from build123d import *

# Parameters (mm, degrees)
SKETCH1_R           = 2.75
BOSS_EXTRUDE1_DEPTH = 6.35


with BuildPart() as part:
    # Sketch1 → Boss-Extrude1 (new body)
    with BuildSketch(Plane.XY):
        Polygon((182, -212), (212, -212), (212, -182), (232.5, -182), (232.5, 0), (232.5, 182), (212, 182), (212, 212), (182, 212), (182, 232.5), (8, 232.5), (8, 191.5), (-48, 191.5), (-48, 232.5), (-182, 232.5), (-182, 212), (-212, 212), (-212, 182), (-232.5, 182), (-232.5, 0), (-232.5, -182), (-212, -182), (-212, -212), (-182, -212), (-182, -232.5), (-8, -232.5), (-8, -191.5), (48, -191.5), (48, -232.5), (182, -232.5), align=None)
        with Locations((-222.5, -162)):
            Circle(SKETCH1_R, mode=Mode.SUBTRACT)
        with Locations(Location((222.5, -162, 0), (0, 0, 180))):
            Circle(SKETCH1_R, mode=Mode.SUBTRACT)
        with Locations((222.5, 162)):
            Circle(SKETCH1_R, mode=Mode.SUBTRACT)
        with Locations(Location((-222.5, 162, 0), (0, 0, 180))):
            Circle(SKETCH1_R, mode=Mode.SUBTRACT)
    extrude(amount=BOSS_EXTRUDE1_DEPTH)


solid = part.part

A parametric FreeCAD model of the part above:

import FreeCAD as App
import Part
import Sketcher

V = App.Vector

doc = App.newDocument("Part")
params = doc.addObject("Spreadsheet::Sheet", "Params")
for row, (alias, value) in enumerate([
    ("sketch1_diameter", "5.5 mm"),
    ("sketch1_width", "30 mm"),
    ("sketch1_width2", "174 mm"),
    ("sketch1_width3", "56 mm"),
    ("sketch1_width4", "134 mm"),
    ("pad1_length", "6.35 mm"),
], start=1):
    params.set(f"A{row}", alias)
    params.set(f"B{row}", "=" + value)
    params.setAlias(f"B{row}", alias)

body = doc.addObject("PartDesign::Body", "Body")

sketch1 = body.newObject("Sketcher::SketchObject", "Sketch")
sketch1.AttachmentSupport = (doc.getObject("XY_Plane"), [""])
sketch1.MapMode = "FlatFace"
sketch1.addGeometry([
    Part.LineSegment(V(182, -212, 0), V(212, -212, 0)),
    Part.LineSegment(V(212, -212, 0), V(212, -182, 0)),
    Part.LineSegment(V(212, -182, 0), V(232.5, -182, 0)),
    Part.LineSegment(V(232.5, -182, 0), V(232.5, 182, 0)),
    Part.LineSegment(V(232.5, 182, 0), V(212, 182, 0)),
    Part.LineSegment(V(212, 182, 0), V(212, 212, 0)),
    Part.LineSegment(V(212, 212, 0), V(182, 212, 0)),
    Part.LineSegment(V(182, 212, 0), V(182, 232.5, 0)),
    Part.LineSegment(V(182, 232.5, 0), V(8, 232.5, 0)),
    Part.LineSegment(V(8, 232.5, 0), V(8, 191.5, 0)),
    Part.LineSegment(V(8, 191.5, 0), V(-48, 191.5, 0)),
    Part.LineSegment(V(-48, 191.5, 0), V(-48, 232.5, 0)),
    Part.LineSegment(V(-48, 232.5, 0), V(-182, 232.5, 0)),
    Part.LineSegment(V(-182, 232.5, 0), V(-182, 212, 0)),
    Part.LineSegment(V(-182, 212, 0), V(-212, 212, 0)),
    Part.LineSegment(V(-212, 212, 0), V(-212, 182, 0)),
    Part.LineSegment(V(-212, 182, 0), V(-232.5, 182, 0)),
    Part.LineSegment(V(-232.5, 182, 0), V(-232.5, -182, 0)),
    Part.LineSegment(V(-232.5, -182, 0), V(-212, -182, 0)),
    Part.LineSegment(V(-212, -182, 0), V(-212, -212, 0)),
    Part.LineSegment(V(-212, -212, 0), V(-182, -212, 0)),
    Part.LineSegment(V(-182, -212, 0), V(-182, -232.5, 0)),
    Part.LineSegment(V(-182, -232.5, 0), V(-8, -232.5, 0)),
    Part.LineSegment(V(-8, -232.5, 0), V(-8, -191.5, 0)),
    Part.LineSegment(V(-8, -191.5, 0), V(48, -191.5, 0)),
    Part.LineSegment(V(48, -191.5, 0), V(48, -232.5, 0)),
    Part.LineSegment(V(48, -232.5, 0), V(182, -232.5, 0)),
    Part.LineSegment(V(182, -232.5, 0), V(182, -212, 0)),
    Part.Circle(V(-222.5, -162, 0), V(0, 0, 1), 2.8),
    Part.Circle(V(222.5, -162, 0), V(0, 0, 1), 2.8),
    Part.Circle(V(-222.5, 162, 0), V(0, 0, 1), 2.8),
    Part.Circle(V(222.5, 162, 0), V(0, 0, 1), 2.8),
], False)
sketch1.addConstraint([
    Sketcher.Constraint("Coincident", 0, 2, 1, 1),
    Sketcher.Constraint("Coincident", 1, 2, 2, 1),
    Sketcher.Constraint("Coincident", 2, 2, 3, 1),
    Sketcher.Constraint("Coincident", 3, 2, 4, 1),
    Sketcher.Constraint("Coincident", 4, 2, 5, 1),
    Sketcher.Constraint("Coincident", 5, 2, 6, 1),
    Sketcher.Constraint("Coincident", 6, 2, 7, 1),
    Sketcher.Constraint("Coincident", 7, 2, 8, 1),
    Sketcher.Constraint("Coincident", 8, 2, 9, 1),
    Sketcher.Constraint("Coincident", 9, 2, 10, 1),
    Sketcher.Constraint("Coincident", 10, 2, 11, 1),
    Sketcher.Constraint("Coincident", 11, 2, 12, 1),
    Sketcher.Constraint("Coincident", 12, 2, 13, 1),
    Sketcher.Constraint("Coincident", 13, 2, 14, 1),
    Sketcher.Constraint("Coincident", 14, 2, 15, 1),
    Sketcher.Constraint("Coincident", 15, 2, 16, 1),
    Sketcher.Constraint("Coincident", 16, 2, 17, 1),
    Sketcher.Constraint("Coincident", 17, 2, 18, 1),
    Sketcher.Constraint("Coincident", 18, 2, 19, 1),
    Sketcher.Constraint("Coincident", 19, 2, 20, 1),
    Sketcher.Constraint("Coincident", 20, 2, 21, 1),
    Sketcher.Constraint("Coincident", 21, 2, 22, 1),
    Sketcher.Constraint("Coincident", 22, 2, 23, 1),
    Sketcher.Constraint("Coincident", 23, 2, 24, 1),
    Sketcher.Constraint("Coincident", 24, 2, 25, 1),
    Sketcher.Constraint("Coincident", 25, 2, 26, 1),
    Sketcher.Constraint("Coincident", 26, 2, 27, 1),
    Sketcher.Constraint("Coincident", 27, 2, 0, 1),
    Sketcher.Constraint("Horizontal", 0),
    Sketcher.Constraint("Vertical", 1),
    Sketcher.Constraint("Horizontal", 2),
    Sketcher.Constraint("Vertical", 3),
    Sketcher.Constraint("Horizontal", 4),
    Sketcher.Constraint("Vertical", 5),
    Sketcher.Constraint("Horizontal", 6),
    Sketcher.Constraint("Vertical", 7),
    Sketcher.Constraint("Horizontal", 8),
    Sketcher.Constraint("Vertical", 9),
    Sketcher.Constraint("Horizontal", 10),
    Sketcher.Constraint("Vertical", 11),
    Sketcher.Constraint("Horizontal", 12),
    Sketcher.Constraint("Vertical", 13),
    Sketcher.Constraint("Horizontal", 14),
    Sketcher.Constraint("Vertical", 15),
    Sketcher.Constraint("Horizontal", 16),
    Sketcher.Constraint("Vertical", 17),
    Sketcher.Constraint("Horizontal", 18),
    Sketcher.Constraint("Vertical", 19),
    Sketcher.Constraint("Horizontal", 20),
    Sketcher.Constraint("Vertical", 21),
    Sketcher.Constraint("Horizontal", 22),
    Sketcher.Constraint("Vertical", 23),
    Sketcher.Constraint("Horizontal", 24),
    Sketcher.Constraint("Vertical", 25),
    Sketcher.Constraint("Horizontal", 26),
    Sketcher.Constraint("Vertical", 27),
    Sketcher.Constraint("Equal", 28, 29),
    Sketcher.Constraint("Equal", 29, 30),
    Sketcher.Constraint("Equal", 30, 31),
    Sketcher.Constraint("Symmetric", 29, 3, 30, 3, -1, 1),
    Sketcher.Constraint("Symmetric", 28, 3, 31, 3, -1, 1),
    Sketcher.Constraint("Symmetric", 0, 2, 14, 2, -1, 1),
    Sketcher.Constraint("Symmetric", 2, 2, 16, 2, -1, 1),
    Sketcher.Constraint("Symmetric", 4, 2, 18, 2, -1, 1),
    Sketcher.Constraint("Symmetric", 6, 2, 20, 2, -1, 1),
    Sketcher.Constraint("Symmetric", 8, 2, 22, 2, -1, 1),
    Sketcher.Constraint("Symmetric", 10, 2, 24, 2, -1, 1),
    Sketcher.Constraint("Symmetric", 12, 2, 26, 2, -1, 1),
    Sketcher.Constraint("Symmetric", 28, 3, 29, 3, -2),
    Sketcher.Constraint("Symmetric", 7, 2, 12, 2, -2),
    Sketcher.Constraint("Symmetric", 5, 2, 14, 2, -2),
    Sketcher.Constraint("Horizontal", 4, 2, 15, 2),
    Sketcher.Constraint("Equal", 20, 1),
    Sketcher.Constraint("Equal", 18, 7),
    Sketcher.Constraint("Diameter", 28, 5.5),
    Sketcher.Constraint("DistanceX", 0, 1, 0, 2, 30.0),
    Sketcher.Constraint("DistanceX", 8, 2, 8, 1, 174.0),
    Sketcher.Constraint("DistanceX", 10, 2, 10, 1, 56.0),
    Sketcher.Constraint("DistanceX", 12, 2, 12, 1, 134.0),
    Sketcher.Constraint("DistanceY", 3, 1, 3, 2, 364.0),
    Sketcher.Constraint("DistanceY", 9, 2, 9, 1, 41.0),
    Sketcher.Constraint("DistanceX", 2, 1, 2, 2, 20.5),
    Sketcher.Constraint("DistanceY", 28, 3, -1, 1, 162.0),
    Sketcher.Constraint("DistanceX", 28, 3, 29, 3, 445.0),
])
sketch1.setExpression("Constraints[74]", "Params.sketch1_diameter")
sketch1.setExpression("Constraints[75]", "Params.sketch1_width")
sketch1.setExpression("Constraints[76]", "Params.sketch1_width2")
sketch1.setExpression("Constraints[77]", "Params.sketch1_width3")
sketch1.setExpression("Constraints[78]", "Params.sketch1_width4")
pad1 = body.newObject("PartDesign::Pad", "Pad")
pad1.Profile = sketch1
pad1.setExpression("Length", "Params.pad1_length")

doc.recompute()
